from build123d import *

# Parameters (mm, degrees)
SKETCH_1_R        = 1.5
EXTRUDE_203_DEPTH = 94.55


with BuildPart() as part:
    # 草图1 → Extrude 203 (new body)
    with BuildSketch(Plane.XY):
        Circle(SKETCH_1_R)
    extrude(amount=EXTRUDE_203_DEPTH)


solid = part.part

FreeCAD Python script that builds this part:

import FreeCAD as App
import Part
import Sketcher
from FreeCAD import Vector

doc = App.newDocument("Part")
body = doc.addObject("PartDesign::Body", "Body")

sketch1 = body.newObject("Sketcher::SketchObject", "Sketch")
sketch1.AttachmentSupport = (doc.getObject("XY_Plane"), [""])
sketch1.MapMode = "FlatFace"
sketch1.addGeometry(Part.Circle(Vector(0, 0, 0), Vector(0, 0, 1), 1.5), False)
sketch1.addConstraint([
    Sketcher.Constraint("Coincident", 0, 3, -1, 1),
    Sketcher.Constraint("Diameter", 0, 3.0),
])
pad1 = body.newObject("PartDesign::Pad", "Pad")
pad1.Profile = sketch1
pad1.Length = 94.55

doc.recompute()
